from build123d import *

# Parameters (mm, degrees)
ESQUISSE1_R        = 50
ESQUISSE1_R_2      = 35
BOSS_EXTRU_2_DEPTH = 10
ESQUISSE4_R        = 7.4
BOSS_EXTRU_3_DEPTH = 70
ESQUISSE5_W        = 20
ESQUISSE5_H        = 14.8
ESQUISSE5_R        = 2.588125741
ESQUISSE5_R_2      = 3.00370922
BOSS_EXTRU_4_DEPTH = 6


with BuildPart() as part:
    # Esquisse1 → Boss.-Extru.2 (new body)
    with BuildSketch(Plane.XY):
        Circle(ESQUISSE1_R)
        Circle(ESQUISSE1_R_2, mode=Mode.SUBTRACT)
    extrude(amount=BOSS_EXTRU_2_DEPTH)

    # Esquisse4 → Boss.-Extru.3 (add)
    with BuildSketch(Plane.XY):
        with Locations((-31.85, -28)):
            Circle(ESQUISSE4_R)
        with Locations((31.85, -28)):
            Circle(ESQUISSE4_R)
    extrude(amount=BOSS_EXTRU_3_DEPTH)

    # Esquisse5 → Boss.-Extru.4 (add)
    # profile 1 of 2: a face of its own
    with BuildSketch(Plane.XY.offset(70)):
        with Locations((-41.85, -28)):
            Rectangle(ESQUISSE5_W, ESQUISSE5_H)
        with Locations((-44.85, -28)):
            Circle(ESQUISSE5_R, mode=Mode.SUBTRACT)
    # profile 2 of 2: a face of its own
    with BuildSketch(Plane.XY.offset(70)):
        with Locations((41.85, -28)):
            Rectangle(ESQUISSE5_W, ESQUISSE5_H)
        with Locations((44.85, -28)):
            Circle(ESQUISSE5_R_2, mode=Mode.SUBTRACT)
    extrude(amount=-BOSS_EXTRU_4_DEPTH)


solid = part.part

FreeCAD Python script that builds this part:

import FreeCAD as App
import Part
import Sketcher
from FreeCAD import Vector


def add_polygon(sketch, points):
    """Adds a closed chain of lines whose ends are joined by coincident constraints."""
    first, n = sketch.GeometryCount, len(points)
    for a, b in zip(points, points[1:] + points[:1]):
        sketch.addGeometry(Part.LineSegment(App.Vector(*a, 0), App.Vector(*b, 0)), False)
    for i in range(n):
        sketch.addConstraint(Sketcher.Constraint("Coincident", first + i, 2, first + (i + 1) % n, 1))

doc = App.newDocument("Part")
body = doc.addObject("PartDesign::Body", "Body")

# Sketch on XY plane
sketch1 = doc.addObject("Sketcher::SketchObject", "Sketch")
body.addObject(sketch1)
sketch1.AttachmentSupport = (doc.XY_Plane, [""])
sketch1.MapMode = "FlatFace"
sketch1.addGeometry(Part.Circle(Vector(0, 0, 0), Vector(0, 0, 1), 50), False)
sketch1.addGeometry(Part.Circle(Vector(0, 0, 0), Vector(0, 0, 1), 35), False)
sketch1.addConstraint(Sketcher.Constraint("Coincident", 0, 3, -1, 1))
sketch1.addConstraint(Sketcher.Constraint("Coincident", 1, 3, -1, 1))
sketch1.addConstraint(Sketcher.Constraint("Diameter", 0, 100.0))
sketch1.addConstraint(Sketcher.Constraint("Diameter", 1, 70.0))
pad1 = doc.addObject("PartDesign::Pad", "Pad")
body.addObject(pad1)
pad1.Profile = sketch1
pad1.Length = 10

# Sketch on XY plane
sketch2 = doc.addObject("Sketcher::SketchObject", "Sketch001")
body.addObject(sketch2)
sketch2.AttachmentSupport = (doc.XY_Plane, [""])
sketch2.MapMode = "FlatFace"
sketch2.addGeometry(Part.Circle(Vector(-32, -28, 0), Vector(0, 0, 1), 7), False)
sketch2.addGeometry(Part.Circle(Vector(32, -28, 0), Vector(0, 0, 1), 7), False)
sketch2.addConstraint(Sketcher.Constraint("Equal", 0, 1))
sketch2.addConstraint(Sketcher.Constraint("Symmetric", 0, 3, 1, 3, -2))
sketch2.addConstraint(Sketcher.Constraint("Diameter", 0, 14.8))
sketch2.addConstraint(Sketcher.Constraint("DistanceY", 0, 3, -1, 1, 28.0))
sketch2.addConstraint(Sketcher.Constraint("DistanceX", 0, 3, 1, 3, 63.7))
pad2 = doc.addObject("PartDesign::Pad", "Pad001")
body.addObject(pad2)
pad2.Profile = sketch2
pad2.Length = 70

# Sketch on XY plane
sketch3 = doc.addObject("Sketcher::SketchObject", "Sketch002")
body.addObject(sketch3)
sketch3.AttachmentSupport = (doc.XY_Plane, [""])
sketch3.MapMode = "FlatFace"
sketch3.AttachmentOffset = App.Placement(Vector(0, 0, 70), App.Rotation())
add_polygon(sketch3, [(-51.9, -20.6), (-51.9, -35.4), (-31.9, -35.4), (-31.9, -20.6)])  # lines 0-3
sketch3.addGeometry(Part.Circle(Vector(-44.9, -28, 0), Vector(0, 0, 1), 2.6), False)  # 4
add_polygon(sketch3, [(31.9, -20.6), (31.9, -35.4), (51.9, -35.4), (51.9, -20.6)])  # lines 5-8
sketch3.addGeometry(Part.Circle(Vector(44.9, -28, 0), Vector(0, 0, 1), 3), False)  # 9
sketch3.addConstraint(Sketcher.Constraint("Vertical", 0))
sketch3.addConstraint(Sketcher.Constraint("Horizontal", 1))
sketch3.addConstraint(Sketcher.Constraint("Vertical", 2))
sketch3.addConstraint(Sketcher.Constraint("Horizontal", 3))
sketch3.addConstraint(Sketcher.Constraint("Vertical", 5))
sketch3.addConstraint(Sketcher.Constraint("Horizontal", 6))
sketch3.addConstraint(Sketcher.Constraint("Vertical", 7))
sketch3.addConstraint(Sketcher.Constraint("Horizontal", 8))
sketch3.addConstraint(Sketcher.Constraint("Symmetric", 4, 3, 9, 3, -2))
sketch3.addConstraint(Sketcher.Constraint("Symmetric", 1, 2, 5, 2, -2))
sketch3.addConstraint(Sketcher.Constraint("Symmetric", 3, 2, 7, 2, -2))
sketch3.addConstraint(Sketcher.Constraint("DistanceX", 1, 1, 1, 2, 20.0))
sketch3.addConstraint(Sketcher.Constraint("DistanceY", 0, 2, 0, 1, 14.8))
sketch3.addConstraint(Sketcher.Constraint("DistanceY", 4, 3, -1, 1, 28.0))
sketch3.addConstraint(Sketcher.Constraint("DistanceX", 0, 2, 4, 3, 7.0))
sketch3.addConstraint(Sketcher.Constraint("DistanceY", 0, 2, -1, 1, 35.4))
sketch3.addConstraint(Sketcher.Constraint("DistanceX", 4, 3, 9, 3, 89.7))
sketch3.addConstraint(Sketcher.Constraint("Diameter", 4, 5.176251))
sketch3.addConstraint(Sketcher.Constraint("Diameter", 9, 6.007418))
pad3 = doc.addObject("PartDesign::Pad", "Pad002")
body.addObject(pad3)
pad3.Profile = sketch3
pad3.Length = 6
pad3.Reversed = True

doc.recompute()
